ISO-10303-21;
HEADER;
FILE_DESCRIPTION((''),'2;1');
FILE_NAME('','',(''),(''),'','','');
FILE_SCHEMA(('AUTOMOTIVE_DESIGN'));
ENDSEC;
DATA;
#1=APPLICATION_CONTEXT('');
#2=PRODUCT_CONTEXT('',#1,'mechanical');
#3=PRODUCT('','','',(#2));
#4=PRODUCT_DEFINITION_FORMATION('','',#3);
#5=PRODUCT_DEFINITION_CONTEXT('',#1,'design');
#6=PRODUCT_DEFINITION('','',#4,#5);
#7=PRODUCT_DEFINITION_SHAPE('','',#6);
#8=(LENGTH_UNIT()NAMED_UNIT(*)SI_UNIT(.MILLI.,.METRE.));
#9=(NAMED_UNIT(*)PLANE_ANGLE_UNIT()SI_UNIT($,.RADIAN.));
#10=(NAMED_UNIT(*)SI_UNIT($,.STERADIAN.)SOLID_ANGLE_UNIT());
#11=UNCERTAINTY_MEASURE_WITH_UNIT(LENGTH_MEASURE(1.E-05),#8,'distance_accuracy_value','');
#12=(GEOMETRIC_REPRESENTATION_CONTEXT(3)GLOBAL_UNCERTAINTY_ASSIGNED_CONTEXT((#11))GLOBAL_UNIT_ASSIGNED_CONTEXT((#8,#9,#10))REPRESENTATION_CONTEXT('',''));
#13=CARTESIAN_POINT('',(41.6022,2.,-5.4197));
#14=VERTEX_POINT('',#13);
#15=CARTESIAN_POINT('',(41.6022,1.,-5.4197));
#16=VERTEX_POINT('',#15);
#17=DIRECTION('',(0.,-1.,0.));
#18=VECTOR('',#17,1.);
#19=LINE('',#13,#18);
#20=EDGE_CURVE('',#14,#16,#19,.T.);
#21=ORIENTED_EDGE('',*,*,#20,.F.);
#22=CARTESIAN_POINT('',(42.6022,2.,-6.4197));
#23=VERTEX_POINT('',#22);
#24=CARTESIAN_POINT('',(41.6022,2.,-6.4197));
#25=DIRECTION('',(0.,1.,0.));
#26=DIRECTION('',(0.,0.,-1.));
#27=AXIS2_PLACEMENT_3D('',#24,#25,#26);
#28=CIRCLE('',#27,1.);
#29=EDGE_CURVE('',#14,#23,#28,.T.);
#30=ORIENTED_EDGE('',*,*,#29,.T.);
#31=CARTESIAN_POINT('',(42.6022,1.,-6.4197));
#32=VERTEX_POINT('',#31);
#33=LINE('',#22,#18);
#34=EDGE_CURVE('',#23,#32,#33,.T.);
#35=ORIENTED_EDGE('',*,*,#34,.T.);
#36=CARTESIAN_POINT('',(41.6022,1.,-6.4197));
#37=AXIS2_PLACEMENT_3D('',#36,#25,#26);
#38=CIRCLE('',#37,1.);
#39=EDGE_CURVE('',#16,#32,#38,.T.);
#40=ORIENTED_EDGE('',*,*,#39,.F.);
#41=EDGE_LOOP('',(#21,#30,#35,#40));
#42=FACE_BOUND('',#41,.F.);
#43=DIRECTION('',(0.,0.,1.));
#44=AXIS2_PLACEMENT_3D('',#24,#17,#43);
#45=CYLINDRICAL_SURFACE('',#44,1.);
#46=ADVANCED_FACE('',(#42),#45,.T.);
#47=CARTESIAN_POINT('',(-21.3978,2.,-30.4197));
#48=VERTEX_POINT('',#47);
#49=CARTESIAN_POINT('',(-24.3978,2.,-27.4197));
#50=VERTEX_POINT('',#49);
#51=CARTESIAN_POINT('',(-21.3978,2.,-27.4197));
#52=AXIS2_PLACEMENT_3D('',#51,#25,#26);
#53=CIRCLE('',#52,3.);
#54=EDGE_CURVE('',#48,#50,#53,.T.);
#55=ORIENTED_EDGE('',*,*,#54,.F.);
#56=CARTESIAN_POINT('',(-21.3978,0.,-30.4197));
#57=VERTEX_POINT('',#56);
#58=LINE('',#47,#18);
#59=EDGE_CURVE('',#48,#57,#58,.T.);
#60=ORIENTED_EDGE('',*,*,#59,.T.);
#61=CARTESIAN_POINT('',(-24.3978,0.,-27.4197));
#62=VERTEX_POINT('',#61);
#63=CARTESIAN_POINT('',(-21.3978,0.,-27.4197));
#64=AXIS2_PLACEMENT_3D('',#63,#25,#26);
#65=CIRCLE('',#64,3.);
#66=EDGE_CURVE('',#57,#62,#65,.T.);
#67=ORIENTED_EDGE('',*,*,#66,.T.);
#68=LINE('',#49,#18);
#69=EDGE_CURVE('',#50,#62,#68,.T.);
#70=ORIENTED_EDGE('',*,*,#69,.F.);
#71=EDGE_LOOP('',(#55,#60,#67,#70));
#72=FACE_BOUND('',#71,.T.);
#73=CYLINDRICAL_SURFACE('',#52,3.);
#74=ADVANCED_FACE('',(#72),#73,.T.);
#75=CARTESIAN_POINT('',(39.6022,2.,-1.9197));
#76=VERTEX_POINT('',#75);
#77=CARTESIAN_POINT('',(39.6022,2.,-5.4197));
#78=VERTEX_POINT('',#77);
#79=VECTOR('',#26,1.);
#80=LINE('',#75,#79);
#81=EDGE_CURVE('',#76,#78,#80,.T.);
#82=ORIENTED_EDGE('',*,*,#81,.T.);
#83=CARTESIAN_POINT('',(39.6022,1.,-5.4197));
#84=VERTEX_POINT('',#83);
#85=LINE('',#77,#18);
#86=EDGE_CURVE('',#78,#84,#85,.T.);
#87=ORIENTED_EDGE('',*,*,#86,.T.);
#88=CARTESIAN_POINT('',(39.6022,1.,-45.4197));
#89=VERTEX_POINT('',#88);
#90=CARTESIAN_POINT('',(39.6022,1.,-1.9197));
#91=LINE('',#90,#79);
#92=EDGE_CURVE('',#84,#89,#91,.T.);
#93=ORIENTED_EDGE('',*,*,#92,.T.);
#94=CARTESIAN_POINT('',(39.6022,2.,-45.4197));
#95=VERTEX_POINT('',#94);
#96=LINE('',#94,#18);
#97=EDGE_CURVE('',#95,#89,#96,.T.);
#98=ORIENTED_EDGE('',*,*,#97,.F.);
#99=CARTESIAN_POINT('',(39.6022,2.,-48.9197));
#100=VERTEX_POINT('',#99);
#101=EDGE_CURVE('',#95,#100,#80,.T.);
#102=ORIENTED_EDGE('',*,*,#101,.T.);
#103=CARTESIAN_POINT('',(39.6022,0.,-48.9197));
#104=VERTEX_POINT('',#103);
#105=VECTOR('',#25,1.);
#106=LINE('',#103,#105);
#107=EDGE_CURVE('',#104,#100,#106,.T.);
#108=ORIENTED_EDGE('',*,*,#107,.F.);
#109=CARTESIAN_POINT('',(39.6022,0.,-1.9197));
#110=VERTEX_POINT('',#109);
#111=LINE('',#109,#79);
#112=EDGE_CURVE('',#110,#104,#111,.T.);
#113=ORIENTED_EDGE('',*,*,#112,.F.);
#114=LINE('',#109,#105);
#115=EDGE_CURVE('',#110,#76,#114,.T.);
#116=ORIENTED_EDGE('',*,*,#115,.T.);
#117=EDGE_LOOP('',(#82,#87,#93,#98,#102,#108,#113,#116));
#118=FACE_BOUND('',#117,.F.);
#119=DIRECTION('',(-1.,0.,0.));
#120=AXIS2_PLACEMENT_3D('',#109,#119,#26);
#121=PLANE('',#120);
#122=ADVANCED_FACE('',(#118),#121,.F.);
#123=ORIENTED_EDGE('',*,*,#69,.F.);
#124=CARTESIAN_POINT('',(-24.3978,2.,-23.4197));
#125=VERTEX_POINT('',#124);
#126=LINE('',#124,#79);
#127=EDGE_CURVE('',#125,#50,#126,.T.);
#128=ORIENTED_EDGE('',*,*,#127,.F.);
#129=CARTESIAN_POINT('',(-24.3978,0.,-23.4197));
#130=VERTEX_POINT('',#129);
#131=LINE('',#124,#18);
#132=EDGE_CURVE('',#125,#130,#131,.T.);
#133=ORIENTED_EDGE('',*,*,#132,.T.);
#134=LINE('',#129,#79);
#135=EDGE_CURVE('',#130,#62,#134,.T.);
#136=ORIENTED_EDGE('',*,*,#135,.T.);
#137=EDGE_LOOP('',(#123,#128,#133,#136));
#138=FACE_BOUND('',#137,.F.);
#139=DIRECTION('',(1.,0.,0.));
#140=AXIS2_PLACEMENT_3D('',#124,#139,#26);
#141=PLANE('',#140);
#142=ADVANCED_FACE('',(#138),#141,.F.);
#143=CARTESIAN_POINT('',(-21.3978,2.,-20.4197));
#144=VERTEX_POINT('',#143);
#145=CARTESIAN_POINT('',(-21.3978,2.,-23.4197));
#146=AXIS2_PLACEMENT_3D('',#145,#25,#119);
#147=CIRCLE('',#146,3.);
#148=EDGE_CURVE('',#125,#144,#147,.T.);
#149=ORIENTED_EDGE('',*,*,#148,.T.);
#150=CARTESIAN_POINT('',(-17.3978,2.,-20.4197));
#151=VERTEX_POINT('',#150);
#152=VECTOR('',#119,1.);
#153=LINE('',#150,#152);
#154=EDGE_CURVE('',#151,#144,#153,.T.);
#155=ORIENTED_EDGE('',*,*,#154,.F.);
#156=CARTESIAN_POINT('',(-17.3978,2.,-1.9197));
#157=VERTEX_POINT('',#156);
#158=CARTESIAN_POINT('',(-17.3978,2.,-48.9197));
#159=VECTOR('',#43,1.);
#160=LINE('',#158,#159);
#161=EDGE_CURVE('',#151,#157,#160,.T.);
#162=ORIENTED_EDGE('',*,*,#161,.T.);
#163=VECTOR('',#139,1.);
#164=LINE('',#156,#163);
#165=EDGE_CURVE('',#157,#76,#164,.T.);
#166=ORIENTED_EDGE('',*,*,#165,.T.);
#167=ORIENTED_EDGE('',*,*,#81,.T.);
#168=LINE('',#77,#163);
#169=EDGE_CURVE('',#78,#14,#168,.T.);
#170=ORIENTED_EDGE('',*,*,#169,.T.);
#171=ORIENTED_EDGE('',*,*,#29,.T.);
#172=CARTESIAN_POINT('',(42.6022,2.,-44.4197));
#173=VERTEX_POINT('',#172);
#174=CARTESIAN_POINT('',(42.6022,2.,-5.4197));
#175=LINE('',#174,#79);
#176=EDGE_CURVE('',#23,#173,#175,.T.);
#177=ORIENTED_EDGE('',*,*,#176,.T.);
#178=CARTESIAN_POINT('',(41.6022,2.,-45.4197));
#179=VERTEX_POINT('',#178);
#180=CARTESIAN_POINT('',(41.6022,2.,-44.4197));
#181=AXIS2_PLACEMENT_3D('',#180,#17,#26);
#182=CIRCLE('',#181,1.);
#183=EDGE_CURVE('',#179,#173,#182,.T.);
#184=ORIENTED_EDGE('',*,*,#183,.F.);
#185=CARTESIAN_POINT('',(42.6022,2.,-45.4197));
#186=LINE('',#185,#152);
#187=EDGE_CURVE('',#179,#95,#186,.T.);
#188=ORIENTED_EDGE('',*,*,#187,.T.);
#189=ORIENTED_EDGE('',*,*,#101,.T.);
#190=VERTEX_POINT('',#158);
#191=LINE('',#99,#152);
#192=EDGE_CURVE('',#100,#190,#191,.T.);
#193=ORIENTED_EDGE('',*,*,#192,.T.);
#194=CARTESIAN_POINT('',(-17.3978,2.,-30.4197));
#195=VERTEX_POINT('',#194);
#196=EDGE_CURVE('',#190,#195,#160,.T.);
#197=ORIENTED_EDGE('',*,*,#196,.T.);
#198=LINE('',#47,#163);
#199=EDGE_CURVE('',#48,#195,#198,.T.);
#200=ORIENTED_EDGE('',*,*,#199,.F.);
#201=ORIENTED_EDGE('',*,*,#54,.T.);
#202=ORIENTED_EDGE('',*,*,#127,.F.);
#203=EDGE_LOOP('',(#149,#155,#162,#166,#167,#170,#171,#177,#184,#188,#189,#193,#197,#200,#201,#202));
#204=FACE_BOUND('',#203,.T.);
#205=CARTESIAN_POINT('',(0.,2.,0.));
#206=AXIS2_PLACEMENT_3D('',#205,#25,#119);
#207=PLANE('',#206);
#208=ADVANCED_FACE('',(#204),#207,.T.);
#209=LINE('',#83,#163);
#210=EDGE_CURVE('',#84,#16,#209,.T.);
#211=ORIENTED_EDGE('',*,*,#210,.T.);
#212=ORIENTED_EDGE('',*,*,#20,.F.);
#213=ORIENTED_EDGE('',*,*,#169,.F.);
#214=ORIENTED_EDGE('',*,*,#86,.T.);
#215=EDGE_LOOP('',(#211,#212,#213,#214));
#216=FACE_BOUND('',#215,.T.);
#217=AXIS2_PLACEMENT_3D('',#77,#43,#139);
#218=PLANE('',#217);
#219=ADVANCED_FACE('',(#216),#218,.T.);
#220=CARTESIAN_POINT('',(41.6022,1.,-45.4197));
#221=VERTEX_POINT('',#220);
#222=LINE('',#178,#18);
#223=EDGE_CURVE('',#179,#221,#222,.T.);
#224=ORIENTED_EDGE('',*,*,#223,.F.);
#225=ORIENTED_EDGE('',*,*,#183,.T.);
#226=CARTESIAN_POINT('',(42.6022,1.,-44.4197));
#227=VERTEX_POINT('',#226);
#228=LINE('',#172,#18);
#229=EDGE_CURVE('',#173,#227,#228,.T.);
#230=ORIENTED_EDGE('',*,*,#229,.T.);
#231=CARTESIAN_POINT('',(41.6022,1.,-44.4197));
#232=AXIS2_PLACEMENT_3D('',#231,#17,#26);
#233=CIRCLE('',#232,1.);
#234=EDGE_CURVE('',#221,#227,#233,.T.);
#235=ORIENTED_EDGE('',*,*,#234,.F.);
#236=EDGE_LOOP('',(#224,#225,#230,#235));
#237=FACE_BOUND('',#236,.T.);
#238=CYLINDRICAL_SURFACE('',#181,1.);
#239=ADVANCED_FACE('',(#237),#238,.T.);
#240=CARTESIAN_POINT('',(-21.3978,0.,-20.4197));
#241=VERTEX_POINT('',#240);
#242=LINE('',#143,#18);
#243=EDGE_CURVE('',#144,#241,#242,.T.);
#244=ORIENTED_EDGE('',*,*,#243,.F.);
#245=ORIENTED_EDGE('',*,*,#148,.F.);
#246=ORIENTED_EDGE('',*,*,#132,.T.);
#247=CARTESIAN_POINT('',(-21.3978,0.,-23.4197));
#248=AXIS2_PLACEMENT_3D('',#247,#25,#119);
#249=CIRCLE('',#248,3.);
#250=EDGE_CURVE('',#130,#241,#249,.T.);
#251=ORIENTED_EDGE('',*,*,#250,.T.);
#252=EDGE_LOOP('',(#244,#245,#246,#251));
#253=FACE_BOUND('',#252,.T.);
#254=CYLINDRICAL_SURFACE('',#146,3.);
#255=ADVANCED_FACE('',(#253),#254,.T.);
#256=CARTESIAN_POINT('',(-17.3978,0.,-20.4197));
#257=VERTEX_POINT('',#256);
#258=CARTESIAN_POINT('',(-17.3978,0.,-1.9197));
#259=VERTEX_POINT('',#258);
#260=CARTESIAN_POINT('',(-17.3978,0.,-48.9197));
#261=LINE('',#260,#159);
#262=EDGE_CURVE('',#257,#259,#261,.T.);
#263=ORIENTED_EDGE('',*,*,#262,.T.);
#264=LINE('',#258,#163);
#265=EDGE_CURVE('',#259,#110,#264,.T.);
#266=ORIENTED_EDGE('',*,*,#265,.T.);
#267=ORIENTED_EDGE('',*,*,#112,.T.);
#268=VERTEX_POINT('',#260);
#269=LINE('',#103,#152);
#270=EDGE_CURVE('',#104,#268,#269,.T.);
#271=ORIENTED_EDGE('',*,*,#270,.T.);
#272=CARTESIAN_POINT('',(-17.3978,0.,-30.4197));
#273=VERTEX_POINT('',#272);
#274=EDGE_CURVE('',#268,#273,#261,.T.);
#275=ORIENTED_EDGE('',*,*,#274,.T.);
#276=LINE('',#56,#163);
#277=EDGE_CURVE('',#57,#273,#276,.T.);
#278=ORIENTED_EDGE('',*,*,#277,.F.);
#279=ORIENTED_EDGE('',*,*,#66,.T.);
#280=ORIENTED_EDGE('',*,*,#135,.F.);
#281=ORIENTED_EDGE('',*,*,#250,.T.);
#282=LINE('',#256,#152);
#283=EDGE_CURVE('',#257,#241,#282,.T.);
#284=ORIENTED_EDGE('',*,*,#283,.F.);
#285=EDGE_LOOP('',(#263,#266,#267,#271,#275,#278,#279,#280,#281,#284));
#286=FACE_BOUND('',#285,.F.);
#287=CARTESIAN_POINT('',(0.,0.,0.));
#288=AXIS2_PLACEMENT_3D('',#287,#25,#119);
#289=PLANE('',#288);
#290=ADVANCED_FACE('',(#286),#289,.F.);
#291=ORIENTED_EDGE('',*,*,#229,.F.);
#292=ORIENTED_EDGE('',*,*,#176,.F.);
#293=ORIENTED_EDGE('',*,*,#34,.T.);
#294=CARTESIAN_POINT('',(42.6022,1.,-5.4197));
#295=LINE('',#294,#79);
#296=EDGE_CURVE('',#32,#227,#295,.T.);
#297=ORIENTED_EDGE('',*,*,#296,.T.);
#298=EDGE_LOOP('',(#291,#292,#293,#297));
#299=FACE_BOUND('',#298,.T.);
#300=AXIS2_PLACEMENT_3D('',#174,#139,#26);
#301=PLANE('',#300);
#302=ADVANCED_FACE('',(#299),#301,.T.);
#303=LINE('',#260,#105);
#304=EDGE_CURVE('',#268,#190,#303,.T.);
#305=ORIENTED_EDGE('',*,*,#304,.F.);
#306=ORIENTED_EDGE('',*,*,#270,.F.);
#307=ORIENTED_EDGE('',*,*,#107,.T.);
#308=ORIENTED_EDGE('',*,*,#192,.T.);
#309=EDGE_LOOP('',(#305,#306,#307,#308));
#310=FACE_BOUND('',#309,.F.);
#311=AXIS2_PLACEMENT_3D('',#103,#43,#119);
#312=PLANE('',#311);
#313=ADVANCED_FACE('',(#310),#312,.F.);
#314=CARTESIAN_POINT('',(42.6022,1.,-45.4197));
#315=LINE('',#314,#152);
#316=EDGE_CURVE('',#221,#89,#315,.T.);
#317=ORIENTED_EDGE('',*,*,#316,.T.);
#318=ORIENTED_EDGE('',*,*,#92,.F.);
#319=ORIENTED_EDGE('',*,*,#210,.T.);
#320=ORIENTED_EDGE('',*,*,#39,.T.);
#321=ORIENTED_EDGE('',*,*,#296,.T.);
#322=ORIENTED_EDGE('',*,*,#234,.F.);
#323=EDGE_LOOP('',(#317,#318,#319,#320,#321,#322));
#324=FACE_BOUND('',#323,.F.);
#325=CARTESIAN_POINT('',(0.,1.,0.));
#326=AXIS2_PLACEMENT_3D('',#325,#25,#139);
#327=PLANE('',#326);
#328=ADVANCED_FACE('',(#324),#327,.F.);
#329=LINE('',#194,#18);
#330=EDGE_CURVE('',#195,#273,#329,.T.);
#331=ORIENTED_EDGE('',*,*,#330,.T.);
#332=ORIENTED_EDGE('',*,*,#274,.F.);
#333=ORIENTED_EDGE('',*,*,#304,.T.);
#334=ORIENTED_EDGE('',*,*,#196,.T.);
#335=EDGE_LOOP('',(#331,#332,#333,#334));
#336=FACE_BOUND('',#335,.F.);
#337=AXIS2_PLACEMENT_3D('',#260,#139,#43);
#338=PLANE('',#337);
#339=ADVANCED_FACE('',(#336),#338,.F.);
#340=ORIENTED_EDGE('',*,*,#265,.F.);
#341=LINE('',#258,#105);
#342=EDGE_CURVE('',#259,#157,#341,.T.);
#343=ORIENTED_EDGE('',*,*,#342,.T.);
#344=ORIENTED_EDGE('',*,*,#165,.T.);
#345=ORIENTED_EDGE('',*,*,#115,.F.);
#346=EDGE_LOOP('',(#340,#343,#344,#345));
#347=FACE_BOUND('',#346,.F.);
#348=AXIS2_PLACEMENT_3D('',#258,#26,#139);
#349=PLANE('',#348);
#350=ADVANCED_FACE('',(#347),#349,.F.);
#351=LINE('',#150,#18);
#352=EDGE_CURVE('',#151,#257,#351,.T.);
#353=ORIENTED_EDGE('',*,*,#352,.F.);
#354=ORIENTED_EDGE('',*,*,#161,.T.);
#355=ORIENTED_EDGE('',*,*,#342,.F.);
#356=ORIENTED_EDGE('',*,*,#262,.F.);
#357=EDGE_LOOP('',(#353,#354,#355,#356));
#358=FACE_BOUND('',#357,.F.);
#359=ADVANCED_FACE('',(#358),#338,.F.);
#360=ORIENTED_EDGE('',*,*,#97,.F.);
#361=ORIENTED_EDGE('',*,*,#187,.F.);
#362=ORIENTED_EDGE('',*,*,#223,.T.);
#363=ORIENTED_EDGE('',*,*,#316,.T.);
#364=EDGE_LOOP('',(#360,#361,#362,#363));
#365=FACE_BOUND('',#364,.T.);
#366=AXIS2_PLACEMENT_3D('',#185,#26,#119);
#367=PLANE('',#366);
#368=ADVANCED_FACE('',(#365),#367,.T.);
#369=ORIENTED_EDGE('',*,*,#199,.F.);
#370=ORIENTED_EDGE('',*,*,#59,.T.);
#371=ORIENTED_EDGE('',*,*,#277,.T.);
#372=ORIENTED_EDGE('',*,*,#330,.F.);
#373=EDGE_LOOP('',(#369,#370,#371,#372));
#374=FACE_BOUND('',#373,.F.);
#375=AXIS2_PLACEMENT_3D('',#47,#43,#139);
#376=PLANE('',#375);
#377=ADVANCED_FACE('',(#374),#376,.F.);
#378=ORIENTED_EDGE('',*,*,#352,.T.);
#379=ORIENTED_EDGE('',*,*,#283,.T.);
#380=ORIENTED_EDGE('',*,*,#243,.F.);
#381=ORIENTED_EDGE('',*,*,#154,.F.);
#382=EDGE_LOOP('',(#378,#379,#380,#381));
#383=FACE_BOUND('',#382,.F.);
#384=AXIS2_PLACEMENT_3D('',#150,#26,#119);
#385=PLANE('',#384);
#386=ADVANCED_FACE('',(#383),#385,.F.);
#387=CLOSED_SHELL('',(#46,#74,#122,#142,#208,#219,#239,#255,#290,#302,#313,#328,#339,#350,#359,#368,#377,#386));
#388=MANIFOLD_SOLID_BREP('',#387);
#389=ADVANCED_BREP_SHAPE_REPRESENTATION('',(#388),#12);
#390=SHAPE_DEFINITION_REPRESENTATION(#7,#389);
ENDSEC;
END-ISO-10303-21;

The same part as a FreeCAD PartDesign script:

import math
import FreeCAD as App
import Part
import Sketcher

V = App.Vector
Q = App.Units.Quantity


def edges_at(feature, points):
    """Names of the edges that pass closest to the given points."""
    edges = feature.Shape.Edges
    near = lambda p: min(range(len(edges)), key=lambda i: edges[i].distToShape(Part.Vertex(*p))[0])
    return sorted({f"Edge{near(p) + 1}" for p in points})

doc = App.newDocument("Part")
body = doc.addObject("PartDesign::Body", "Body")

sketch1 = body.newObject("Sketcher::SketchObject", "Sketch")
sketch1.AttachmentSupport = (doc.getObject("XZ_Plane"), [""])
sketch1.MapMode = "FlatFace"
sketch1.addGeometry(Part.LineSegment(V(-17, -49, 0), V(-17, -2, 0)), False)
sketch1.addGeometry(Part.LineSegment(V(-17, -2, 0), V(40, -2, 0)), False)
sketch1.addGeometry(Part.LineSegment(V(40, -2, 0), V(40, -49, 0)), False)
sketch1.addGeometry(Part.LineSegment(V(40, -49, 0), V(-17, -49, 0)), False)
sketch1.addConstraint(Sketcher.Constraint("Coincident", 0, 2, 1, 1))
sketch1.addConstraint(Sketcher.Constraint("Coincident", 1, 2, 2, 1))
sketch1.addConstraint(Sketcher.Constraint("Coincident", 2, 2, 3, 1))
sketch1.addConstraint(Sketcher.Constraint("Coincident", 3, 2, 0, 1))
sketch1.addConstraint(Sketcher.Constraint("Vertical", 0))
sketch1.addConstraint(Sketcher.Constraint("Horizontal", 1))
sketch1.addConstraint(Sketcher.Constraint("Vertical", 2))
sketch1.addConstraint(Sketcher.Constraint("Horizontal", 3))
sketch1.addConstraint(Sketcher.Constraint("DistanceX", 1, 1, 1, 2, Q("57 mm")))
sketch1.addConstraint(Sketcher.Constraint("DistanceY", 0, 1, 0, 2, Q("47 mm")))
sketch1.addConstraint(Sketcher.Constraint("DistanceX", 0, 2, -1, 1, Q("17.3978 mm")))
sketch1.addConstraint(Sketcher.Constraint("DistanceY", 0, 2, -1, 1, Q("1.9197 mm")))
pad1 = body.newObject("PartDesign::Pad", "Pad")
pad1.Profile = sketch1
pad1.Length = 2
pad1.Reversed = True

sketch2 = body.newObject("Sketcher::SketchObject", "Sketch001")
sketch2.AttachmentSupport = (doc.getObject("XZ_Plane"), [""])
sketch2.MapMode = "FlatFace"
sketch2.AttachmentOffset = App.Placement(V(0, 0, -2), App.Rotation())
sketch2.addGeometry(Part.LineSegment(V(-17.4, -20.4, 0), V(-17.4, -30.4, 0)), False)
sketch2.addGeometry(Part.LineSegment(V(-17.4, -30.4, 0), V(-21.4, -30.4, 0)), False)
sketch2.addGeometry(Part.ArcOfCircle(Part.Circle(V(-21.4, -27.4, 0), V(0, 0, 1), 3), math.radians(180), math.radians(270)), False)
sketch2.addGeometry(Part.LineSegment(V(-24.4, -27.4, 0), V(-24.4, -23.4, 0)), False)
sketch2.addGeometry(Part.ArcOfCircle(Part.Circle(V(-21.4, -23.4, 0), V(0, 0, 1), 3), math.radians(90), math.radians(180)), False)
sketch2.addGeometry(Part.LineSegment(V(-21.4, -20.4, 0), V(-17.4, -20.4, 0)), False)
sketch2.addConstraint(Sketcher.Constraint("Coincident", 0, 2, 1, 1))
sketch2.addConstraint(Sketcher.Constraint("Tangent", 1, 2, 2, 2))
sketch2.addConstraint(Sketcher.Constraint("Tangent", 2, 1, 3, 1))
sketch2.addConstraint(Sketcher.Constraint("Tangent", 3, 2, 4, 2))
sketch2.addConstraint(Sketcher.Constraint("Tangent", 4, 1, 5, 1))
sketch2.addConstraint(Sketcher.Constraint("Coincident", 5, 2, 0, 1))
sketch2.addConstraint(Sketcher.Constraint("Vertical", 0))
sketch2.addConstraint(Sketcher.Constraint("Horizontal", 1))
sketch2.addConstraint(Sketcher.Constraint("Vertical", 3))
sketch2.addConstraint(Sketcher.Constraint("Horizontal", 5))
sketch2.addConstraint(Sketcher.Constraint("Equal", 2, 4))
sketch2.addConstraint(Sketcher.Constraint("Equal", 5, 3))
sketch2.addConstraint(Sketcher.Constraint("Radius", 2, Q("3 mm")))
sketch2.addConstraint(Sketcher.Constraint("DistanceY", 0, 2, 0, 1, Q("10 mm")))
sketch2.addConstraint(Sketcher.Constraint("DistanceX", 2, 3, -1, 1, Q("21.3978 mm")))
sketch2.addConstraint(Sketcher.Constraint("DistanceY", 2, 3, -1, 1, Q("27.4197 mm")))
pad2 = body.newObject("PartDesign::Pad", "Pad001")
pad2.Profile = sketch2
pad2.Length = 2

sketch3 = body.newObject("Sketcher::SketchObject", "Sketch002")
sketch3.AttachmentSupport = (doc.getObject("XZ_Plane"), [""])
sketch3.MapMode = "FlatFace"
sketch3.AttachmentOffset = App.Placement(V(0, 0, -2), App.Rotation())
sketch3.addGeometry(Part.LineSegment(V(39.6, -45.4, 0), V(39.6, -5.4, 0)), False)
sketch3.addGeometry(Part.LineSegment(V(39.6, -5.4, 0), V(42.6, -5.4, 0)), False)
sketch3.addGeometry(Part.LineSegment(V(42.6, -5.4, 0), V(42.6, -45.4, 0)), False)
sketch3.addGeometry(Part.LineSegment(V(42.6, -45.4, 0), V(39.6, -45.4, 0)), False)
sketch3.addConstraint(Sketcher.Constraint("Coincident", 0, 2, 1, 1))
sketch3.addConstraint(Sketcher.Constraint("Coincident", 1, 2, 2, 1))
sketch3.addConstraint(Sketcher.Constraint("Coincident", 2, 2, 3, 1))
sketch3.addConstraint(Sketcher.Constraint("Coincident", 3, 2, 0, 1))
sketch3.addConstraint(Sketcher.Constraint("Vertical", 0))
sketch3.addConstraint(Sketcher.Constraint("Horizontal", 1))
sketch3.addConstraint(Sketcher.Constraint("Vertical", 2))
sketch3.addConstraint(Sketcher.Constraint("Horizontal", 3))
sketch3.addConstraint(Sketcher.Constraint("DistanceX", 1, 1, 1, 2, Q("3 mm")))
sketch3.addConstraint(Sketcher.Constraint("DistanceY", 0, 1, 0, 2, Q("40 mm")))
sketch3.addConstraint(Sketcher.Constraint("DistanceX", -1, 1, 0, 2, Q("39.6022 mm")))
sketch3.addConstraint(Sketcher.Constraint("DistanceY", 0, 2, -1, 1, Q("5.4197 mm")))
pad3 = body.newObject("PartDesign::Pad", "Pad002")
pad3.Profile = sketch3
pad3.Length = 1
doc.recompute()

fillet = body.newObject("PartDesign::Fillet", "Fillet")
fillet.Base = (pad3, edges_at(pad3, [(42.602, 1.5, -5.42), (42.602, 1.5, -45.42)]))
fillet.Radius = 1

doc.recompute()
